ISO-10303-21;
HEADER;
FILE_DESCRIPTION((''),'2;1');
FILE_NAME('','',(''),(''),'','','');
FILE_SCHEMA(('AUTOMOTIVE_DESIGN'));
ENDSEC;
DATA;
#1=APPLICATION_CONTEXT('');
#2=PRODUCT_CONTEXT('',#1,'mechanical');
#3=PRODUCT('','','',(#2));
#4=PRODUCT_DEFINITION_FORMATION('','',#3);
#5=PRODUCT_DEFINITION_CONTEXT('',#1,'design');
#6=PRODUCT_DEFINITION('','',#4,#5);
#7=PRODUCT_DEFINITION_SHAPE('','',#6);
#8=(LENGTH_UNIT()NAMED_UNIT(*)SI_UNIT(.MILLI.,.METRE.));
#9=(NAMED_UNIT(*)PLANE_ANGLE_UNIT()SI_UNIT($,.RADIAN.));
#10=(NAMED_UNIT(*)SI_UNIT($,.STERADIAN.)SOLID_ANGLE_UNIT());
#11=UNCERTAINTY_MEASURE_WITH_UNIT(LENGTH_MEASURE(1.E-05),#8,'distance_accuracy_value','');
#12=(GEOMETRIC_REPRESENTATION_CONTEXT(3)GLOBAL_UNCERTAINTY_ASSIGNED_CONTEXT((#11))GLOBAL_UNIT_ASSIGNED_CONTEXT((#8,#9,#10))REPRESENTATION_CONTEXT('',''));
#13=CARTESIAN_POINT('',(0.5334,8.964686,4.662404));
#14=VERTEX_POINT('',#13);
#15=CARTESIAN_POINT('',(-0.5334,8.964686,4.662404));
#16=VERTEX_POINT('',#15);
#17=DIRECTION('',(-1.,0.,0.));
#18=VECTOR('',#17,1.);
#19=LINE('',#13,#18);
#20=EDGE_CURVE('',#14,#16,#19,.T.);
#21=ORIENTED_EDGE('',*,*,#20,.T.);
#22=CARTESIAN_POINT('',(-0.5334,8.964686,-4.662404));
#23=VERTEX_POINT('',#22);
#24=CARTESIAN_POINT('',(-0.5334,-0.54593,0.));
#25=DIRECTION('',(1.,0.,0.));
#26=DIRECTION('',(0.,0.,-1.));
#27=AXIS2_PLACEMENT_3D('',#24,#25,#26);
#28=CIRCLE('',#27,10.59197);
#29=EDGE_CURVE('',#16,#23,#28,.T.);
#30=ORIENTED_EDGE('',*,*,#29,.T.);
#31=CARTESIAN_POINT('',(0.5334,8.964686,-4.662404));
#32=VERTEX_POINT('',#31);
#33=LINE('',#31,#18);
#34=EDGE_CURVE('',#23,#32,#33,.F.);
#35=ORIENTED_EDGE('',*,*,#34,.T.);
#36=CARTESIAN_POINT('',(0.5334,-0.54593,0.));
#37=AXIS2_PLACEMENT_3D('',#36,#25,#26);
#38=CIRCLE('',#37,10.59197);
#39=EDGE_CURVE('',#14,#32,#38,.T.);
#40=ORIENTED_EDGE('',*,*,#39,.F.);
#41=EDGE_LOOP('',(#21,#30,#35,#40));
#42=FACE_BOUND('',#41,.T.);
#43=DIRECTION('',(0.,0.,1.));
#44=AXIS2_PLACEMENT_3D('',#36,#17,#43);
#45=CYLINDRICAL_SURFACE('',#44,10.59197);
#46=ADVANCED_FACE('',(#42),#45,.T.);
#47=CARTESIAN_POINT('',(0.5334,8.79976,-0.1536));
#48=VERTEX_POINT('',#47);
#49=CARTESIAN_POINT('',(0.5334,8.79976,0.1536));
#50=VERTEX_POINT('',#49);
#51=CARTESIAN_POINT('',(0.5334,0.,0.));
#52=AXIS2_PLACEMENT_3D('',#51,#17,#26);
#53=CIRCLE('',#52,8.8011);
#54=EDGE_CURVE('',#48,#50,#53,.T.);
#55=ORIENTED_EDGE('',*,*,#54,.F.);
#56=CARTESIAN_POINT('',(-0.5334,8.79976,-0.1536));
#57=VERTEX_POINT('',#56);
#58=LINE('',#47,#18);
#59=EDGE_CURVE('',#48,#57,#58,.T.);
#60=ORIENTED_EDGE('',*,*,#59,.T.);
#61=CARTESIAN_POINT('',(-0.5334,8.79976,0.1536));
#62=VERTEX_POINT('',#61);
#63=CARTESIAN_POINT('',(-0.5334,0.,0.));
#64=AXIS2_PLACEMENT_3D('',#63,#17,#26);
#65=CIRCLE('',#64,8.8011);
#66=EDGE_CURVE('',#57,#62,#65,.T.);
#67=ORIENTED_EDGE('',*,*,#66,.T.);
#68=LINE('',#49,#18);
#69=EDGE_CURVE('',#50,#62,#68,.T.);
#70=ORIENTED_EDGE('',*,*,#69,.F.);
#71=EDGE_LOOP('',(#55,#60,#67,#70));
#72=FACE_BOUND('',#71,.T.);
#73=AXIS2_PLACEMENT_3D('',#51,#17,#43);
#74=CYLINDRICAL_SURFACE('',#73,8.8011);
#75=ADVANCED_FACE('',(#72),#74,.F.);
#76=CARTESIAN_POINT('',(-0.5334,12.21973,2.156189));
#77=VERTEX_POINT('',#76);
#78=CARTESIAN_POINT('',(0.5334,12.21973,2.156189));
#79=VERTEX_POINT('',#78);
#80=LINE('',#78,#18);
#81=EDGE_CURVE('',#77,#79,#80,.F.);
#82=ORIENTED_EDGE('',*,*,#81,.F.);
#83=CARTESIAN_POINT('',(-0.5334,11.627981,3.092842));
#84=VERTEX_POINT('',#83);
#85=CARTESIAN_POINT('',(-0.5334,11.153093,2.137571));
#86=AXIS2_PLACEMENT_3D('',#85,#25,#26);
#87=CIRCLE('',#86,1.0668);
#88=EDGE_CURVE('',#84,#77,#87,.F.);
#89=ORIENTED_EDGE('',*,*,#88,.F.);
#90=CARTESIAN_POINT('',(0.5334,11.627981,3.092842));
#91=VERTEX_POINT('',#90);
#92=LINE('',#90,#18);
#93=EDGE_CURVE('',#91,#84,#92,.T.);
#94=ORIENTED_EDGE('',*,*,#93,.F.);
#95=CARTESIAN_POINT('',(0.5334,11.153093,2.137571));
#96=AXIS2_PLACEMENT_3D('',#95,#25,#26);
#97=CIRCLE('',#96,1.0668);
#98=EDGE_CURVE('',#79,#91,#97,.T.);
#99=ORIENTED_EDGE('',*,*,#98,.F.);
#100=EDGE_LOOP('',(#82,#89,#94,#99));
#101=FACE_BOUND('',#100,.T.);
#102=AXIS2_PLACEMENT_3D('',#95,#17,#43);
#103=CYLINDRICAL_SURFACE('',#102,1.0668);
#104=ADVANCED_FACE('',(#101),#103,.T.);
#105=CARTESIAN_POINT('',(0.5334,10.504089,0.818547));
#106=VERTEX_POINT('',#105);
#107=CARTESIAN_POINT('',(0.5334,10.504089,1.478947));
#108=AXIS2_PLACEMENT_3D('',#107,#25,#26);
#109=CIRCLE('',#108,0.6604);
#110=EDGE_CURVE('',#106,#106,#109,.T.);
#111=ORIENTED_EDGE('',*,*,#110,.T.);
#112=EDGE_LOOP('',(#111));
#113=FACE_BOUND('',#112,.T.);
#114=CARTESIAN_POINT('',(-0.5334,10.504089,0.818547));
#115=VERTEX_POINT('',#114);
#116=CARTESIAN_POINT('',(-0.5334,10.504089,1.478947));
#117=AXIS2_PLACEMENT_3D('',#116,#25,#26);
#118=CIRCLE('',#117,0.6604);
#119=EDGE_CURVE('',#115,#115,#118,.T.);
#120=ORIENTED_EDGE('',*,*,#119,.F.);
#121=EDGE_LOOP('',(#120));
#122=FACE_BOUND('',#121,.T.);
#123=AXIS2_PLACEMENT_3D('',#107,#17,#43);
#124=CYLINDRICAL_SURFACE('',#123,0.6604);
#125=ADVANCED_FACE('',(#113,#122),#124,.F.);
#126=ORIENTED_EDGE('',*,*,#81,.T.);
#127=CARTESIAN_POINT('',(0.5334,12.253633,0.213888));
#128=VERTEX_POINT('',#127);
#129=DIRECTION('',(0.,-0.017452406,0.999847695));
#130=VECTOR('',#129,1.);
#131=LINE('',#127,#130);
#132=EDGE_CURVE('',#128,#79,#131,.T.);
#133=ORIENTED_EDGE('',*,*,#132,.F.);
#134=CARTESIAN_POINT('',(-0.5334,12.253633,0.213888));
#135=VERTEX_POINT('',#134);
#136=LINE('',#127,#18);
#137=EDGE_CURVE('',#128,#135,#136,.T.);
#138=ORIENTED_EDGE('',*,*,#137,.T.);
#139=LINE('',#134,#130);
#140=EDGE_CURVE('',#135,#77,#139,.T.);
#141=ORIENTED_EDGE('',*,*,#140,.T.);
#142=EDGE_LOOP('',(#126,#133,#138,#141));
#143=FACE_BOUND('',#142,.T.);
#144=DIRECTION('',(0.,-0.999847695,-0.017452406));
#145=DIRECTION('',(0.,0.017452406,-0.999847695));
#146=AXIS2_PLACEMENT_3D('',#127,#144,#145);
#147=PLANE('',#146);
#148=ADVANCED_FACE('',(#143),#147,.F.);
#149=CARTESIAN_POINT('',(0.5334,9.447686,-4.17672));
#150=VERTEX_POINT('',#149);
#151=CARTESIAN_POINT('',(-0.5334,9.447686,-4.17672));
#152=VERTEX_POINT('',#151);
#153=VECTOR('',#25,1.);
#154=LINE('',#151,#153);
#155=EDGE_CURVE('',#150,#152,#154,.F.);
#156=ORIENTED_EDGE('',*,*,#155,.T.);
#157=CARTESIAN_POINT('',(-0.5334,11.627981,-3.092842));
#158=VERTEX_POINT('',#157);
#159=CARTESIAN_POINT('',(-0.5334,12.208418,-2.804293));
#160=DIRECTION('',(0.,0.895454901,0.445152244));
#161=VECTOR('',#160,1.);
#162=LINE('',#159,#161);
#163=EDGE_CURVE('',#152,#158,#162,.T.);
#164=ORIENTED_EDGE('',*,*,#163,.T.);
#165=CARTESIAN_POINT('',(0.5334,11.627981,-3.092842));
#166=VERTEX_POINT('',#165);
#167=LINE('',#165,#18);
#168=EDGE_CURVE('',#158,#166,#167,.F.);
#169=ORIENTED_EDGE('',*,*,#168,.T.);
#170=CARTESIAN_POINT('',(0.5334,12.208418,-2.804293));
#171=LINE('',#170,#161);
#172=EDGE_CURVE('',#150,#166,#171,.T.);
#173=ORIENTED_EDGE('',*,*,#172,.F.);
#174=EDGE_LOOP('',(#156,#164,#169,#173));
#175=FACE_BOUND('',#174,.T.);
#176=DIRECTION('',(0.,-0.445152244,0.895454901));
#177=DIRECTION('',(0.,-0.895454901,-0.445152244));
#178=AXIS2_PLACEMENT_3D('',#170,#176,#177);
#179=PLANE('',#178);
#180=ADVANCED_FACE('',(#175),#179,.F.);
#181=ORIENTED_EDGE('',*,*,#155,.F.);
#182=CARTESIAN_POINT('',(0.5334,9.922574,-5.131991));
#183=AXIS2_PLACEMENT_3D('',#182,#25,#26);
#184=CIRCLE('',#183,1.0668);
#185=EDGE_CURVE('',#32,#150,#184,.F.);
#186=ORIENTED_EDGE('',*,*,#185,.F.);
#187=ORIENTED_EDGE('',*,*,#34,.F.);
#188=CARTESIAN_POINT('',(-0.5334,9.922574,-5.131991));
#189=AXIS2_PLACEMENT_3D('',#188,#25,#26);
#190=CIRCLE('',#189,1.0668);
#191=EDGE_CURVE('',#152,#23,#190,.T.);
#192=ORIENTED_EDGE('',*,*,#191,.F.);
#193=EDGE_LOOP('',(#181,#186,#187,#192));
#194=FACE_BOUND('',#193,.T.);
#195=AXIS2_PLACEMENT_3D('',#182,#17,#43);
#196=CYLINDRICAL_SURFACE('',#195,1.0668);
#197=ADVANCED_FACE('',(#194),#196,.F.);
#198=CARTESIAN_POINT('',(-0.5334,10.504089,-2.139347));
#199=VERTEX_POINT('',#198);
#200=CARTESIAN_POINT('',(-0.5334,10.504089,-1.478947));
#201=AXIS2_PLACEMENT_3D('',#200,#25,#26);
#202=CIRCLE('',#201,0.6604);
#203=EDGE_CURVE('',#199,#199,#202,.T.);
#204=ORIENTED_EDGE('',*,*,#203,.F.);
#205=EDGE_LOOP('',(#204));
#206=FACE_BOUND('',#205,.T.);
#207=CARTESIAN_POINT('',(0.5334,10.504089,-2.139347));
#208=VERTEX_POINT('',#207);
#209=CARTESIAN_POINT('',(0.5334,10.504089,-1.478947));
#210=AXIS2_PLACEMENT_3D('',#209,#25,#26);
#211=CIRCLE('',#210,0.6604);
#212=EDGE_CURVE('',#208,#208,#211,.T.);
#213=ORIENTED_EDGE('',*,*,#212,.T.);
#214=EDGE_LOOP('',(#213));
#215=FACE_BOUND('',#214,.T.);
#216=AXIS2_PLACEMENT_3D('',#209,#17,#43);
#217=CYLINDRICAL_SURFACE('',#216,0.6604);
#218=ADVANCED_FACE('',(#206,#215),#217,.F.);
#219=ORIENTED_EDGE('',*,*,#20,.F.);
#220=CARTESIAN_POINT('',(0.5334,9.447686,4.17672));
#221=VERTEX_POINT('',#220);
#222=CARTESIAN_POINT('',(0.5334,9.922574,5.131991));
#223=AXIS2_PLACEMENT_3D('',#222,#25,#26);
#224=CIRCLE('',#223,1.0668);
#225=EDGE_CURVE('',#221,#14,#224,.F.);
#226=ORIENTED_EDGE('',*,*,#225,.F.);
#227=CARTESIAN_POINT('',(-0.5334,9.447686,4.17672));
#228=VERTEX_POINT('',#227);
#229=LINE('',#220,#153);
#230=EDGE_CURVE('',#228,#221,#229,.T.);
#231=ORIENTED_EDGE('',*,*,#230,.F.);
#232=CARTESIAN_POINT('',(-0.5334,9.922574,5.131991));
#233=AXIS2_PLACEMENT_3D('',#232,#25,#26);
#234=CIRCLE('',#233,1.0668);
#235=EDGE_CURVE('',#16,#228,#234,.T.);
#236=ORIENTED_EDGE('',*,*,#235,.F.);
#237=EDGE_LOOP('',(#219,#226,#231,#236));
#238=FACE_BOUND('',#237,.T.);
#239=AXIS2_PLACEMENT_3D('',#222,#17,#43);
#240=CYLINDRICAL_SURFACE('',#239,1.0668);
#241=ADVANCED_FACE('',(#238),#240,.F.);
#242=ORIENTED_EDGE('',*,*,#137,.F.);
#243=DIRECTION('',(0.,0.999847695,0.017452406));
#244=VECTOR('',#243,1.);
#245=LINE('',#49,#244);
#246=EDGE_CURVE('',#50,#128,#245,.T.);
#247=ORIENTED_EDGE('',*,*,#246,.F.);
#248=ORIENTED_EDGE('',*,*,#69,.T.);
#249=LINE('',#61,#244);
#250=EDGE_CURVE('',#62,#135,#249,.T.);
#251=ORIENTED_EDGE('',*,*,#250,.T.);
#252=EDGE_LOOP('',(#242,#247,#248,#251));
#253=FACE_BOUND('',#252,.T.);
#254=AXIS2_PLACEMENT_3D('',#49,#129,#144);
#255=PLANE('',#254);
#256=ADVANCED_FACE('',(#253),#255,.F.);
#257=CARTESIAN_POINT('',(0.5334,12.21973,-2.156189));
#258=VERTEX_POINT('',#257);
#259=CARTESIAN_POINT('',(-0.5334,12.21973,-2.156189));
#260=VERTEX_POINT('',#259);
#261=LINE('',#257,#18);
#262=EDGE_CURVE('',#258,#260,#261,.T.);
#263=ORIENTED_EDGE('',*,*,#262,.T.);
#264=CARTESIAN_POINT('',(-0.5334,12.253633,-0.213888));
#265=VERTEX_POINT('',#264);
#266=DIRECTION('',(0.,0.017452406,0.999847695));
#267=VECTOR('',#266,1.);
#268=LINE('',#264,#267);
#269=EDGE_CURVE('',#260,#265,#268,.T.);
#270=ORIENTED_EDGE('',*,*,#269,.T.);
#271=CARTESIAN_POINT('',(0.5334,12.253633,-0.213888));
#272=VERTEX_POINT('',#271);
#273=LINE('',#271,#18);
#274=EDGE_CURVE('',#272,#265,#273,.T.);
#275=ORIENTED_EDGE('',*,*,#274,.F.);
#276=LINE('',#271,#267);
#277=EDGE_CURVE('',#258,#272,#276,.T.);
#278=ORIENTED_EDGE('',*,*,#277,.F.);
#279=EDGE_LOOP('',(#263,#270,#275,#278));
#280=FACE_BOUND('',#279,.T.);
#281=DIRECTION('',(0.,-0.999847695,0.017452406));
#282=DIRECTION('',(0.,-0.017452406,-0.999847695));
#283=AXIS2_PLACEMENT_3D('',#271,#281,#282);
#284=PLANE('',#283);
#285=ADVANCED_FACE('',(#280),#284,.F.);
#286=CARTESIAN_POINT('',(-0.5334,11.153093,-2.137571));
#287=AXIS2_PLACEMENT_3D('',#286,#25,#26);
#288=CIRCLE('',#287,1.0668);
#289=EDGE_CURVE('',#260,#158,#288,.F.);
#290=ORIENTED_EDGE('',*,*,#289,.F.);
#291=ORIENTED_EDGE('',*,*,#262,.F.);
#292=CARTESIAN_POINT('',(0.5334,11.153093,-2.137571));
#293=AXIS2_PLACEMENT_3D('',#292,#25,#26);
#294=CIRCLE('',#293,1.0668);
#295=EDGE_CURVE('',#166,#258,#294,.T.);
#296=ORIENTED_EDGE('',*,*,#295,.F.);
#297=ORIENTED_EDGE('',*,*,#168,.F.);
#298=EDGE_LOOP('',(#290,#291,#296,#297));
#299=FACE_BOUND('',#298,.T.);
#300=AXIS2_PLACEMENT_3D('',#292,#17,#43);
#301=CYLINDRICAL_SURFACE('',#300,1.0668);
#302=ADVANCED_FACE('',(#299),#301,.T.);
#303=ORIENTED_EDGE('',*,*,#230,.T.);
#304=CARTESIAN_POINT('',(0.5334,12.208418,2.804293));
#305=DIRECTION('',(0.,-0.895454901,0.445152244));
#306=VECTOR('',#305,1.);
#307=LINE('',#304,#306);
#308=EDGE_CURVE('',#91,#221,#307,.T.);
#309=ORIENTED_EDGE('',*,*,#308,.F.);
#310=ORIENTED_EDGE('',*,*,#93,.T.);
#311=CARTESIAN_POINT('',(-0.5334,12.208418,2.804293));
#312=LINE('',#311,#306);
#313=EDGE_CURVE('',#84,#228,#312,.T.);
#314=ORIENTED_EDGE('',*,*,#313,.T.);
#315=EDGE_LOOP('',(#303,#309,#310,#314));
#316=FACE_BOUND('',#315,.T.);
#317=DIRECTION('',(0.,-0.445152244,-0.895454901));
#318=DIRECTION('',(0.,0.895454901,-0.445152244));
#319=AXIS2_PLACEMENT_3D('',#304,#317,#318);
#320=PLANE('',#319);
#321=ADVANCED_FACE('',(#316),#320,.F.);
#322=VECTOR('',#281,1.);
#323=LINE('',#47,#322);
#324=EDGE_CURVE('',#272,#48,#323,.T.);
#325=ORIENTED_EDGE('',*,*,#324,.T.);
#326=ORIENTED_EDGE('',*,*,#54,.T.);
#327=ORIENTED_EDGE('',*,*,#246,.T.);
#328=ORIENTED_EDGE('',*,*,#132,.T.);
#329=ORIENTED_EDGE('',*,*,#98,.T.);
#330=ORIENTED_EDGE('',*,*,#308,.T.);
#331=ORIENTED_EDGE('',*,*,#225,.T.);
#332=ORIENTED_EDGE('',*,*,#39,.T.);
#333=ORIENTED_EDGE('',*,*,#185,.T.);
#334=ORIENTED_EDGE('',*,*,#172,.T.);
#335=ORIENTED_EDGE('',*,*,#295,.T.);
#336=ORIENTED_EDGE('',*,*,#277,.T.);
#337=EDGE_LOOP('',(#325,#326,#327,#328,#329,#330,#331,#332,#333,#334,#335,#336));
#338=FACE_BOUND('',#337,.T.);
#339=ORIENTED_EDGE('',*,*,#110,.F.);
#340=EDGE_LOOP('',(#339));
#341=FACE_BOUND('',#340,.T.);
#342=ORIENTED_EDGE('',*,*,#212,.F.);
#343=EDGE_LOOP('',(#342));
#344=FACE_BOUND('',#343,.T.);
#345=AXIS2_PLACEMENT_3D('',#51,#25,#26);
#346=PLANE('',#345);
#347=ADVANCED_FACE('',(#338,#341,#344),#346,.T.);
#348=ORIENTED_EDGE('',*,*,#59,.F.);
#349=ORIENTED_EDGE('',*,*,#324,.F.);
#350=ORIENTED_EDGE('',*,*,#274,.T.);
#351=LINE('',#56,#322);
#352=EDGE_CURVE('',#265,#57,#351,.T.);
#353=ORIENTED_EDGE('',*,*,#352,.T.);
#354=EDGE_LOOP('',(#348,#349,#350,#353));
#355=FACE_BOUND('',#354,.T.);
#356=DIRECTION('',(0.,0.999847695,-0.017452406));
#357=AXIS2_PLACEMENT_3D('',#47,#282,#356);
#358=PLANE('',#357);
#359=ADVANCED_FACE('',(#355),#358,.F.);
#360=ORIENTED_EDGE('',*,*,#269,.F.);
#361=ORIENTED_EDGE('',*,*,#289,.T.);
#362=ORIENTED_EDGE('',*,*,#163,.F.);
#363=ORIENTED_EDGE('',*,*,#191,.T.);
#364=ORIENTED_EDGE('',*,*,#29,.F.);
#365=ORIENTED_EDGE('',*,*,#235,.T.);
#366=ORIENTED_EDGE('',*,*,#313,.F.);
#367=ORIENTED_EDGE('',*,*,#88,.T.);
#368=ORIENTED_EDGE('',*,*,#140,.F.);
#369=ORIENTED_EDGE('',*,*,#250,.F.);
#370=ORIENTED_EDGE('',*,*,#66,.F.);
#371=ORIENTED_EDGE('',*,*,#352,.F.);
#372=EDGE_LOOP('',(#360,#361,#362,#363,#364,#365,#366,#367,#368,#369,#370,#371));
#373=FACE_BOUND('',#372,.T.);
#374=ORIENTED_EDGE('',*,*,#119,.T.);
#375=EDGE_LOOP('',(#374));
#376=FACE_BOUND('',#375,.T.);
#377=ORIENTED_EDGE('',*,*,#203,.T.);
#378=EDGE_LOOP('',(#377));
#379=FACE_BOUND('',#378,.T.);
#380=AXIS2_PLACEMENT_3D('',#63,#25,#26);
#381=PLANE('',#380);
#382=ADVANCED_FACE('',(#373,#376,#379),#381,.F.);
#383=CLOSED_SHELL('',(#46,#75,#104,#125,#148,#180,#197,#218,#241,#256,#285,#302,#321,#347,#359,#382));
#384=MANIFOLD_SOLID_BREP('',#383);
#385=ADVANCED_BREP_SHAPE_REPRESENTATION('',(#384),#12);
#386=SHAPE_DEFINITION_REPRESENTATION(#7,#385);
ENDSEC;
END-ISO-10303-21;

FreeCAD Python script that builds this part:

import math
import FreeCAD as App
import Part
import Sketcher
Q = App.Units.Quantity


def edges_at(feature, points):
    """Names of the edges that pass closest to the given points."""
    edges = feature.Shape.Edges
    near = lambda p: min(range(len(edges)), key=lambda i: edges[i].distToShape(Part.Vertex(*p))[0])
    return sorted({f"Edge{near(p) + 1}" for p in points})

doc = App.newDocument("Part")
params = doc.addObject("Spreadsheet::Sheet", "Params")
for row, (alias, value) in enumerate([
    ("sketch1_diameter", "0.052 in"),
    ("sketch1_length", "0.136 in"),
    ("sketch1_length2", "0.102 in"),
    ("pad1_length", "0.042 in"),
    ("fillet_radius", "0.042 in"),
], start=1):
    params.set(f"A{row}", alias)
    params.set(f"B{row}", "=" + value)
    params.setAlias(f"B{row}", alias)

body = doc.addObject("PartDesign::Body", "Body")

# Sketch on YZ plane
sketch1 = doc.addObject("Sketcher::SketchObject", "Sketch")
body.addObject(sketch1)
sketch1.AttachmentSupport = (doc.YZ_Plane, [""])
sketch1.MapMode = "FlatFace"
sketch1.addGeometry(Part.LineSegment(App.Vector(8.79976, 0.1536, 0), App.Vector(12.253633, 0.213888, 0)), False)
sketch1.addGeometry(Part.LineSegment(App.Vector(12.253633, 0.213888, 0), App.Vector(12.208418, 2.804293, 0)), False)
sketch1.addGeometry(Part.LineSegment(App.Vector(12.208418, 2.804293, 0), App.Vector(9.115158, 4.342027, 0)), False)
sketch1.addGeometry(Part.ArcOfCircle(Part.Circle(App.Vector(-0.54593, 0, 0), App.Vector(0, 0, 1), 10.59197), math.radians(24.2008), math.radians(335.7992)), False)
sketch1.addGeometry(Part.LineSegment(App.Vector(9.115158, -4.342027, 0), App.Vector(12.208418, -2.804293, 0)), False)
sketch1.addGeometry(Part.LineSegment(App.Vector(12.208418, -2.804293, 0), App.Vector(12.253633, -0.213888, 0)), False)
sketch1.addGeometry(Part.LineSegment(App.Vector(12.253633, -0.213888, 0), App.Vector(8.79976, -0.1536, 0)), False)
sketch1.addGeometry(Part.ArcOfCircle(Part.Circle(App.Vector(0, 0, 0), App.Vector(0, 0, 1), 8.8011), math.radians(1), math.radians(359)), False)
sketch1.addGeometry(Part.Circle(App.Vector(10.504089, 1.478947, 0), App.Vector(0, 0, 1), 0.6604), False)
sketch1.addGeometry(Part.Circle(App.Vector(10.504089, -1.478947, 0), App.Vector(0, 0, 1), 0.6604), False)
sketch1.addConstraint(Sketcher.Constraint("Coincident", 0, 2, 1, 1))
sketch1.addConstraint(Sketcher.Constraint("Coincident", 1, 2, 2, 1))
sketch1.addConstraint(Sketcher.Constraint("Coincident", 2, 2, 3, 1))
sketch1.addConstraint(Sketcher.Constraint("Coincident", 3, 2, 4, 1))
sketch1.addConstraint(Sketcher.Constraint("Coincident", 4, 2, 5, 1))
sketch1.addConstraint(Sketcher.Constraint("Coincident", 5, 2, 6, 1))
sketch1.addConstraint(Sketcher.Constraint("Coincident", 6, 2, 7, 2))
sketch1.addConstraint(Sketcher.Constraint("Coincident", 7, 1, 0, 1))
sketch1.addConstraint(Sketcher.Constraint("Coincident", 7, 3, -1, 1))
sketch1.addConstraint(Sketcher.Constraint("Equal", 8, 9))
sketch1.addConstraint(Sketcher.Constraint("Symmetric", 8, 3, 9, 3, -1))
sketch1.addConstraint(Sketcher.Constraint("Symmetric", 2, 2, 3, 2, -1))
sketch1.addConstraint(Sketcher.Constraint("Symmetric", 1, 2, 4, 2, -1))
sketch1.addConstraint(Sketcher.Constraint("Symmetric", 0, 2, 5, 2, -1))
sketch1.addConstraint(Sketcher.Constraint("Perpendicular", 0, 1))
sketch1.addConstraint(Sketcher.Constraint("Perpendicular", 5, 6))
sketch1.addConstraint(Sketcher.Constraint("Equal", 0, 2))
sketch1.addConstraint(Sketcher.Constraint("Diameter", 8, Q("0.052 in")))
sketch1.addConstraint(Sketcher.Constraint("Angle", 0, Q("1 deg")))
sketch1.addConstraint(Sketcher.Constraint("Radius", 7, Q("0.3465 in")))
sketch1.addConstraint(Sketcher.Constraint("Distance", 0, Q("0.136 in")))
sketch1.addConstraint(Sketcher.Constraint("Distance", 1, Q("0.102 in")))
sketch1.addConstraint(Sketcher.Constraint("Radius", 3, Q("10.59197 mm")))
sketch1.addConstraint(Sketcher.Constraint("DistanceY", 6, 2, -1, 1, Q("0.1536 mm")))
sketch1.addConstraint(Sketcher.Constraint("DistanceX", 6, 2, 3, 2, Q("0.315399 mm")))
sketch1.addConstraint(Sketcher.Constraint("DistanceX", -1, 1, 8, 3, Q("10.504089 mm")))
sketch1.addConstraint(Sketcher.Constraint("DistanceY", 0, 2, 8, 3, Q("1.265059 mm")))
sketch1.setExpression("Constraints[17]", "Params.sketch1_diameter")
sketch1.setExpression("Constraints[20]", "Params.sketch1_length")
sketch1.setExpression("Constraints[21]", "Params.sketch1_length2")
pad1 = doc.addObject("PartDesign::Pad", "Pad")
body.addObject(pad1)
pad1.Profile = sketch1
pad1.setExpression("Length", "Params.pad1_length")
pad1.Midplane = True
doc.recompute()

fillet = doc.addObject("PartDesign::Fillet", "Fillet")
body.addObject(fillet)
fillet.Base = (pad1, edges_at(pad1, [
    (0, 12.208, -2.804),
    (0, 9.115, -4.342),
    (0, 9.115, 4.342),
    (0, 12.208, 2.804),
]))
fillet.setExpression("Radius", "Params.fillet_radius")

doc.recompute()
